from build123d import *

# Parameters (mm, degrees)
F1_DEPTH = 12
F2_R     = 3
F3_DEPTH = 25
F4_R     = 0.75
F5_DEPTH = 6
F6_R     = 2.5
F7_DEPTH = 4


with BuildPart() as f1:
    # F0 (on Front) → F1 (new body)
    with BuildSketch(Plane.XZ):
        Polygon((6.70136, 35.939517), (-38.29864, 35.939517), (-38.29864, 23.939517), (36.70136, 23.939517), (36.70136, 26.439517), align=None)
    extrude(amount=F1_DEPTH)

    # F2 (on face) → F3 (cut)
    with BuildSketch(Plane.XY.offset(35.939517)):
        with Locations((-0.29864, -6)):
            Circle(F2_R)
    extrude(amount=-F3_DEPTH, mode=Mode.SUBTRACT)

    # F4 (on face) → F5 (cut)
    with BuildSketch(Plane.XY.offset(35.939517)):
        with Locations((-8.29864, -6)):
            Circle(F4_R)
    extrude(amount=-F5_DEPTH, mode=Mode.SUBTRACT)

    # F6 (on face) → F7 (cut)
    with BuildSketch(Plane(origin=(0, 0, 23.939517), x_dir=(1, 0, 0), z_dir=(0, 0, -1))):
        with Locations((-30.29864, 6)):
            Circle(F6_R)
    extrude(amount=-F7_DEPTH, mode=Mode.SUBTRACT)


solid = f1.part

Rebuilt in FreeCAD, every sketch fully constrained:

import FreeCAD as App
import Part
import Sketcher

V = App.Vector

doc = App.newDocument("Part")
body = doc.addObject("PartDesign::Body", "Body")

sketch1 = doc.addObject("Sketcher::SketchObject", "Sketch")
body.addObject(sketch1)
sketch1.AttachmentSupport = (doc.XZ_Plane, [""])
sketch1.MapMode = "FlatFace"
sketch1.addGeometry([
    Part.LineSegment(V(6.70136, 35.939517, 0), V(-38.29864, 35.939517, 0)),
    Part.LineSegment(V(-38.29864, 35.939517, 0), V(-38.29864, 23.939517, 0)),
    Part.LineSegment(V(-38.29864, 23.939517, 0), V(36.70136, 23.939517, 0)),
    Part.LineSegment(V(36.70136, 23.939517, 0), V(36.70136, 26.439517, 0)),
    Part.LineSegment(V(36.70136, 26.439517, 0), V(6.70136, 35.939517, 0)),
], False)
sketch1.addConstraint([
    Sketcher.Constraint("Coincident", 0, 2, 1, 1),
    Sketcher.Constraint("Coincident", 1, 2, 2, 1),
    Sketcher.Constraint("Coincident", 2, 2, 3, 1),
    Sketcher.Constraint("Coincident", 3, 2, 4, 1),
    Sketcher.Constraint("Coincident", 4, 2, 0, 1),
    Sketcher.Constraint("Horizontal", 0),
    Sketcher.Constraint("Vertical", 1),
    Sketcher.Constraint("Horizontal", 2),
    Sketcher.Constraint("Vertical", 3),
    Sketcher.Constraint("DistanceX", 0, 2, 0, 1, 45.0),
    Sketcher.Constraint("DistanceX", 2, 1, 2, 2, 75.0),
    Sketcher.Constraint("DistanceY", 1, 2, 1, 1, 12.0),
    Sketcher.Constraint("DistanceY", 3, 1, 3, 2, 2.5),
    Sketcher.Constraint("DistanceX", 0, 2, -1, 1, 38.29864),
    Sketcher.Constraint("DistanceY", -1, 1, 0, 2, 35.939517),
])
pad1 = doc.addObject("PartDesign::Pad", "Pad")
body.addObject(pad1)
pad1.Profile = sketch1
pad1.Length = 12

sketch2 = doc.addObject("Sketcher::SketchObject", "Sketch001")
body.addObject(sketch2)
sketch2.AttachmentSupport = (doc.XY_Plane, [""])
sketch2.MapMode = "FlatFace"
sketch2.AttachmentOffset = App.Placement(V(0, 0, 35.939517), App.Rotation())
sketch2.addGeometry(Part.Circle(V(-0.29864, -6, 0), V(0, 0, 1), 3), False)
sketch2.addConstraint([
    Sketcher.Constraint("Diameter", 0, 6.0),
    Sketcher.Constraint("DistanceY", 0, 3, -1, 1, 6.0),
    Sketcher.Constraint("DistanceX", 0, 3, -1, 1, 0.29864),
])
pocket1 = doc.addObject("PartDesign::Pocket", "Pocket")
body.addObject(pocket1)
pocket1.Profile = sketch2
pocket1.Length = 25

sketch3 = doc.addObject("Sketcher::SketchObject", "Sketch002")
body.addObject(sketch3)
sketch3.AttachmentSupport = (doc.XY_Plane, [""])
sketch3.MapMode = "FlatFace"
sketch3.AttachmentOffset = App.Placement(V(0, 0, 35.939517), App.Rotation())
sketch3.addGeometry(Part.Circle(V(-8.29864, -6, 0), V(0, 0, 1), 0.75), False)
sketch3.addConstraint([
    Sketcher.Constraint("Diameter", 0, 1.5),
    Sketcher.Constraint("DistanceY", 0, 3, -1, 1, 6.0),
    Sketcher.Constraint("DistanceX", 0, 3, -1, 1, 8.29864),
])
pocket2 = doc.addObject("PartDesign::Pocket", "Pocket001")
body.addObject(pocket2)
pocket2.Profile = sketch3
pocket2.Length = 6

sketch4 = doc.addObject("Sketcher::SketchObject", "Sketch003")
body.addObject(sketch4)
sketch4.AttachmentSupport = (doc.XY_Plane, [""])
sketch4.MapMode = "FlatFace"
sketch4.AttachmentOffset = App.Placement(V(0, 0, 23.939517), App.Rotation())
sketch4.addGeometry(Part.Circle(V(-30.29864, -6, 0), V(0, 0, 1), 2.5), False)
sketch4.addConstraint([
    Sketcher.Constraint("Diameter", 0, 5.0),
    Sketcher.Constraint("DistanceY", 0, 3, -1, 1, 6.0),
    Sketcher.Constraint("DistanceX", 0, 3, -1, 1, 30.29864),
])
pocket3 = doc.addObject("PartDesign::Pocket", "Pocket002")
body.addObject(pocket3)
pocket3.Profile = sketch4
pocket3.Length = 4
pocket3.Reversed = True

doc.recompute()
